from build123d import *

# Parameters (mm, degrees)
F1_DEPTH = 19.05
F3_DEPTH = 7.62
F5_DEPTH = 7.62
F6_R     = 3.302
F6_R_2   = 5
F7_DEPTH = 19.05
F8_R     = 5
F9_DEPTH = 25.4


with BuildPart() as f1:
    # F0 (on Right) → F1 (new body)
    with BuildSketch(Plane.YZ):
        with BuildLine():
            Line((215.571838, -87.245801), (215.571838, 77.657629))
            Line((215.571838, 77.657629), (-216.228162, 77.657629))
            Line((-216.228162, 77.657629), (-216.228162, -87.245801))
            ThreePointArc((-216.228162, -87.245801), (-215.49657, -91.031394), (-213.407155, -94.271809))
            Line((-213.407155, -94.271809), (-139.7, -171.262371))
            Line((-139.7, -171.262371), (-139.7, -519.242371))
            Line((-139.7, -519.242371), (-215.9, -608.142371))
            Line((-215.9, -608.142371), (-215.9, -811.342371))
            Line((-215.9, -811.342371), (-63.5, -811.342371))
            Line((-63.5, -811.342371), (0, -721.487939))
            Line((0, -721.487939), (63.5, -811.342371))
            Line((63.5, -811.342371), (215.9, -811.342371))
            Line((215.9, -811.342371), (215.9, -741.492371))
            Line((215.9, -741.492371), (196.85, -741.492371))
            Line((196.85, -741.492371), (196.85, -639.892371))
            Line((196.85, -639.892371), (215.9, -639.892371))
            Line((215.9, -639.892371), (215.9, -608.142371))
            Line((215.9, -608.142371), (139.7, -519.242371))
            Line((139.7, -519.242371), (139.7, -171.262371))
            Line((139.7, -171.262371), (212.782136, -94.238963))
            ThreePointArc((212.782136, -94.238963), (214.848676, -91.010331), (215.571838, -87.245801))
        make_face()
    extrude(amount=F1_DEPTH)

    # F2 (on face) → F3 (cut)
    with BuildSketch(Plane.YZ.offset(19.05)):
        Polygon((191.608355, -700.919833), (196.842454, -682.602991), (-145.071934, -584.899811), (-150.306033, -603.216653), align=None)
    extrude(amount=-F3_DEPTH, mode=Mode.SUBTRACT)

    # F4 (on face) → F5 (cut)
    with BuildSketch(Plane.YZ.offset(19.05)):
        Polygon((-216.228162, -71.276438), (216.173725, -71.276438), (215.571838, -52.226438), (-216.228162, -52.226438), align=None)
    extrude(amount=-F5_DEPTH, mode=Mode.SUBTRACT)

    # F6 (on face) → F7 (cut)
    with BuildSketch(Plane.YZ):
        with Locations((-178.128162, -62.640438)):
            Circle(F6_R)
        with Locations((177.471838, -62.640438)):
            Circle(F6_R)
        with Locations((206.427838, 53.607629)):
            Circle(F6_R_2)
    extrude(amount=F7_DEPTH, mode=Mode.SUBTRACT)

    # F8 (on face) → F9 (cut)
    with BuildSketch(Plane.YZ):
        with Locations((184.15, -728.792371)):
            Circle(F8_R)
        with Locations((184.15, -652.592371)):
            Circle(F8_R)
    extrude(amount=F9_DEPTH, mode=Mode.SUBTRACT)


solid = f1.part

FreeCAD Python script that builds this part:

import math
import FreeCAD as App
import Part
import Sketcher
Q = App.Units.Quantity

doc = App.newDocument("Part")
body = doc.addObject("PartDesign::Body", "Body")

# Sketch on YZ plane
sketch1 = body.newObject("Sketcher::SketchObject", "Sketch")
sketch1.AttachmentSupport = (doc.getObject("YZ_Plane"), [""])
sketch1.MapMode = "FlatFace"
sketch1.addGeometry(Part.LineSegment(App.Vector(215.571838, -87.245801, 0), App.Vector(215.571838, 77.657629, 0)), False)
sketch1.addGeometry(Part.LineSegment(App.Vector(215.571838, 77.657629, 0), App.Vector(-216.228162, 77.657629, 0)), False)
sketch1.addGeometry(Part.LineSegment(App.Vector(-216.228162, 77.657629, 0), App.Vector(-216.228162, -87.245801, 0)), False)
sketch1.addGeometry(Part.ArcOfCircle(Part.Circle(App.Vector(-206.068155, -87.245798, 0), App.Vector(0, 0, 1), 10.160007), math.radians(-179.999986), math.radians(-136.248183)), False)
sketch1.addGeometry(Part.LineSegment(App.Vector(-213.407155, -94.271809, 0), App.Vector(-139.7, -171.262371, 0)), False)
sketch1.addGeometry(Part.LineSegment(App.Vector(-139.7, -171.262371, 0), App.Vector(-139.7, -519.242371, 0)), False)
sketch1.addGeometry(Part.LineSegment(App.Vector(-139.7, -519.242371, 0), App.Vector(-215.9, -608.142371, 0)), False)
sketch1.addGeometry(Part.LineSegment(App.Vector(-215.9, -608.142371, 0), App.Vector(-215.9, -811.342371, 0)), False)
sketch1.addGeometry(Part.LineSegment(App.Vector(-215.9, -811.342371, 0), App.Vector(-63.5, -811.342371, 0)), False)
sketch1.addGeometry(Part.LineSegment(App.Vector(-63.5, -811.342371, 0), App.Vector(0, -721.487939, 0)), False)
sketch1.addGeometry(Part.LineSegment(App.Vector(0, -721.487939, 0), App.Vector(63.5, -811.342371, 0)), False)
sketch1.addGeometry(Part.LineSegment(App.Vector(63.5, -811.342371, 0), App.Vector(215.9, -811.342371, 0)), False)
sketch1.addGeometry(Part.LineSegment(App.Vector(215.9, -811.342371, 0), App.Vector(215.9, -741.492371, 0)), False)
sketch1.addGeometry(Part.LineSegment(App.Vector(215.9, -741.492371, 0), App.Vector(196.85, -741.492371, 0)), False)
sketch1.addGeometry(Part.LineSegment(App.Vector(196.85, -741.492371, 0), App.Vector(196.85, -639.892371, 0)), False)
sketch1.addGeometry(Part.LineSegment(App.Vector(196.85, -639.892371, 0), App.Vector(215.9, -639.892371, 0)), False)
sketch1.addGeometry(Part.LineSegment(App.Vector(215.9, -639.892371, 0), App.Vector(215.9, -608.142371, 0)), False)
sketch1.addGeometry(Part.LineSegment(App.Vector(215.9, -608.142371, 0), App.Vector(139.7, -519.242371, 0)), False)
sketch1.addGeometry(Part.LineSegment(App.Vector(139.7, -519.242371, 0), App.Vector(139.7, -171.262371, 0)), False)
sketch1.addGeometry(Part.LineSegment(App.Vector(139.7, -171.262371, 0), App.Vector(212.782136, -94.238963, 0)), False)
sketch1.addGeometry(Part.ArcOfCircle(Part.Circle(App.Vector(205.411834, -87.2458, 0), App.Vector(0, 0, 1), 10.160004), math.radians(-43.49594), math.radians(-0.000006)), False)
sketch1.addConstraint(Sketcher.Constraint("Coincident", 0, 2, 1, 1))
sketch1.addConstraint(Sketcher.Constraint("Coincident", 1, 2, 2, 1))
sketch1.addConstraint(Sketcher.Constraint("Tangent", 2, 2, 3, 1))
sketch1.addConstraint(Sketcher.Constraint("Tangent", 3, 2, 4, 1))
sketch1.addConstraint(Sketcher.Constraint("Coincident", 4, 2, 5, 1))
sketch1.addConstraint(Sketcher.Constraint("Coincident", 5, 2, 6, 1))
sketch1.addConstraint(Sketcher.Constraint("Coincident", 6, 2, 7, 1))
sketch1.addConstraint(Sketcher.Constraint("Coincident", 7, 2, 8, 1))
sketch1.addConstraint(Sketcher.Constraint("Coincident", 8, 2, 9, 1))
sketch1.addConstraint(Sketcher.Constraint("Coincident", 9, 2, 10, 1))
sketch1.addConstraint(Sketcher.Constraint("Coincident", 10, 2, 11, 1))
sketch1.addConstraint(Sketcher.Constraint("Coincident", 11, 2, 12, 1))
sketch1.addConstraint(Sketcher.Constraint("Coincident", 12, 2, 13, 1))
sketch1.addConstraint(Sketcher.Constraint("Coincident", 13, 2, 14, 1))
sketch1.addConstraint(Sketcher.Constraint("Coincident", 14, 2, 15, 1))
sketch1.addConstraint(Sketcher.Constraint("Coincident", 15, 2, 16, 1))
sketch1.addConstraint(Sketcher.Constraint("Coincident", 16, 2, 17, 1))
sketch1.addConstraint(Sketcher.Constraint("Coincident", 17, 2, 18, 1))
sketch1.addConstraint(Sketcher.Constraint("Coincident", 18, 2, 19, 1))
sketch1.addConstraint(Sketcher.Constraint("Tangent", 19, 2, 20, 1))
sketch1.addConstraint(Sketcher.Constraint("Tangent", 20, 2, 0, 1))
sketch1.addConstraint(Sketcher.Constraint("Vertical", 0))
sketch1.addConstraint(Sketcher.Constraint("Horizontal", 1))
sketch1.addConstraint(Sketcher.Constraint("Vertical", 2))
sketch1.addConstraint(Sketcher.Constraint("Vertical", 5))
sketch1.addConstraint(Sketcher.Constraint("Vertical", 7))
sketch1.addConstraint(Sketcher.Constraint("Horizontal", 8))
sketch1.addConstraint(Sketcher.Constraint("Horizontal", 11))
sketch1.addConstraint(Sketcher.Constraint("Vertical", 12))
sketch1.addConstraint(Sketcher.Constraint("Horizontal", 13))
sketch1.addConstraint(Sketcher.Constraint("Vertical", 14))
sketch1.addConstraint(Sketcher.Constraint("Horizontal", 15))
sketch1.addConstraint(Sketcher.Constraint("Vertical", 16))
sketch1.addConstraint(Sketcher.Constraint("Vertical", 18))
sketch1.addConstraint(Sketcher.Constraint("Symmetric", 8, 2, 10, 2, -2))
sketch1.addConstraint(Sketcher.Constraint("Symmetric", 6, 2, 16, 2, -2))
sketch1.addConstraint(Sketcher.Constraint("Symmetric", 5, 2, 17, 2, -2))
sketch1.addConstraint(Sketcher.Constraint("PointOnObject", 9, 2, -2))
sketch1.addConstraint(Sketcher.Constraint("Horizontal", 3, 3, 20, 3))
sketch1.addConstraint(Sketcher.Constraint("Horizontal", 4, 2, 18, 2))
sketch1.addConstraint(Sketcher.Constraint("Vertical", 12, 2, 15, 2))
sketch1.addConstraint(Sketcher.Constraint("Radius", 20, Q("0.4000002 in")))
sketch1.addConstraint(Sketcher.Constraint("DistanceX", 1, 2, 1, 1, Q("17 in")))
sketch1.addConstraint(Sketcher.Constraint("DistanceX", 8, 1, 8, 2, Q("6 in")))
sketch1.addConstraint(Sketcher.Constraint("DistanceY", 7, 2, 7, 1, Q("8 in")))
sketch1.addConstraint(Sketcher.Constraint("DistanceY", 14, 1, 14, 2, Q("4 in")))
sketch1.addConstraint(Sketcher.Constraint("DistanceY", 5, 2, 5, 1, Q("13.7 in")))
sketch1.addConstraint(Sketcher.Constraint("DistanceX", 6, 2, 5, 2, Q("3 in")))
sketch1.addConstraint(Sketcher.Constraint("DistanceX", 8, 2, 10, 2, Q("5 in")))
sketch1.addConstraint(Sketcher.Constraint("DistanceX", 13, 2, 13, 1, Q("0.75 in")))
sketch1.addConstraint(Sketcher.Constraint("DistanceY", 12, 1, 12, 2, Q("2.75 in")))
sketch1.addConstraint(Sketcher.Constraint("DistanceY", 4, 2, 1, 2, Q("9.8 in")))
sketch1.addConstraint(Sketcher.Constraint("DistanceY", 6, 2, 5, 2, Q("3.5 in")))
sketch1.addConstraint(Sketcher.Constraint("Radius", 3, Q("10.160007 mm")))
sketch1.addConstraint(Sketcher.Constraint("DistanceY", 0, 1, 0, 2, Q("164.90343 mm")))
sketch1.addConstraint(Sketcher.Constraint("DistanceY", 3, 3, -1, 1, Q("87.245798 mm")))
sketch1.addConstraint(Sketcher.Constraint("DistanceX", 3, 2, 3, 3, Q("7.339 mm")))
sketch1.addConstraint(Sketcher.Constraint("DistanceY", 9, 2, -1, 1, Q("721.487939 mm")))
pad1 = body.newObject("PartDesign::Pad", "Pad")
pad1.Profile = sketch1
pad1.Length = Q("0.75 in")

# Sketch on YZ plane
sketch2 = body.newObject("Sketcher::SketchObject", "Sketch001")
sketch2.AttachmentSupport = (doc.getObject("YZ_Plane"), [""])
sketch2.MapMode = "FlatFace"
sketch2.AttachmentOffset = App.Placement(App.Vector(0, 0, 0.75 * 25.4), App.Rotation())
sketch2.addGeometry(Part.LineSegment(App.Vector(191.608355, -700.919833, 0), App.Vector(196.842454, -682.602991, 0)), False)
sketch2.addGeometry(Part.LineSegment(App.Vector(196.842454, -682.602991, 0), App.Vector(-145.071934, -584.899811, 0)), False)
sketch2.addGeometry(Part.LineSegment(App.Vector(-145.071934, -584.899811, 0), App.Vector(-150.306033, -603.216653, 0)), False)
sketch2.addGeometry(Part.LineSegment(App.Vector(-150.306033, -603.216653, 0), App.Vector(191.608355, -700.919833, 0)), False)
sketch2.addConstraint(Sketcher.Constraint("Coincident", 0, 2, 1, 1))
sketch2.addConstraint(Sketcher.Constraint("Coincident", 1, 2, 2, 1))
sketch2.addConstraint(Sketcher.Constraint("Coincident", 2, 2, 3, 1))
sketch2.addConstraint(Sketcher.Constraint("Coincident", 3, 2, 0, 1))
sketch2.addConstraint(Sketcher.Constraint("Perpendicular", 0, 1))
sketch2.addConstraint(Sketcher.Constraint("Perpendicular", 1, 2))
sketch2.addConstraint(Sketcher.Constraint("Perpendicular", 2, 3))
sketch2.addConstraint(Sketcher.Constraint("Distance", 1, Q("14 in")))
sketch2.addConstraint(Sketcher.Constraint("Distance", 0, Q("0.75 in")))
sketch2.addConstraint(Sketcher.Constraint("DistanceX", 2, 2, 1, 2, Q("5.234099 mm")))
sketch2.addConstraint(Sketcher.Constraint("DistanceY", 0, 2, -1, 1, Q("682.602991 mm")))
sketch2.addConstraint(Sketcher.Constraint("DistanceX", -1, 1, 0, 2, Q("196.842454 mm")))
pocket1 = body.newObject("PartDesign::Pocket", "Pocket")
pocket1.Profile = sketch2
pocket1.Length = Q("0.3 in")

# Sketch on YZ plane
sketch3 = body.newObject("Sketcher::SketchObject", "Sketch002")
sketch3.AttachmentSupport = (doc.getObject("YZ_Plane"), [""])
sketch3.MapMode = "FlatFace"
sketch3.AttachmentOffset = App.Placement(App.Vector(0, 0, 0.75 * 25.4), App.Rotation())
sketch3.addGeometry(Part.LineSegment(App.Vector(-216.228162, -71.276438, 0), App.Vector(216.173725, -71.276438, 0)), False)
sketch3.addGeometry(Part.LineSegment(App.Vector(216.173725, -71.276438, 0), App.Vector(215.571838, -52.226438, 0)), False)
sketch3.addGeometry(Part.LineSegment(App.Vector(215.571838, -52.226438, 0), App.Vector(-216.228162, -52.226438, 0)), False)
sketch3.addGeometry(Part.LineSegment(App.Vector(-216.228162, -52.226438, 0), App.Vector(-216.228162, -71.276438, 0)), False)
sketch3.addConstraint(Sketcher.Constraint("Coincident", 0, 2, 1, 1))
sketch3.addConstraint(Sketcher.Constraint("Coincident", 1, 2, 2, 1))
sketch3.addConstraint(Sketcher.Constraint("Coincident", 2, 2, 3, 1))
sketch3.addConstraint(Sketcher.Constraint("Coincident", 3, 2, 0, 1))
sketch3.addConstraint(Sketcher.Constraint("Horizontal", 0))
sketch3.addConstraint(Sketcher.Constraint("Horizontal", 2))
sketch3.addConstraint(Sketcher.Constraint("Vertical", 3))
sketch3.addConstraint(Sketcher.Constraint("DistanceX", 2, 2, 2, 1, Q("17 in")))
sketch3.addConstraint(Sketcher.Constraint("DistanceY", 3, 2, 3, 1, Q("0.75 in")))
sketch3.addConstraint(Sketcher.Constraint("DistanceX", 0, 1, 0, 2, Q("432.401887 mm")))
sketch3.addConstraint(Sketcher.Constraint("DistanceY", 0, 2, -1, 1, Q("71.276438 mm")))
sketch3.addConstraint(Sketcher.Constraint("DistanceX", -1, 1, 1, 2, Q("215.571838 mm")))
pocket2 = body.newObject("PartDesign::Pocket", "Pocket001")
pocket2.Profile = sketch3
pocket2.Length = Q("0.3 in")

# Sketch on YZ plane
sketch4 = body.newObject("Sketcher::SketchObject", "Sketch003")
sketch4.AttachmentSupport = (doc.getObject("YZ_Plane"), [""])
sketch4.MapMode = "FlatFace"
sketch4.addGeometry(Part.Circle(App.Vector(-178.128162, -62.640438, 0), App.Vector(0, 0, 1), 3.302), False)
sketch4.addGeometry(Part.Circle(App.Vector(177.471838, -62.640438, 0), App.Vector(0, 0, 1), 3.302), False)
sketch4.addGeometry(Part.Circle(App.Vector(206.427838, 53.607629, 0), App.Vector(0, 0, 1), 5), False)
sketch4.addConstraint(Sketcher.Constraint("Equal", 0, 1))
sketch4.addConstraint(Sketcher.Constraint("Horizontal", 0, 3, 1, 3))
sketch4.addConstraint(Sketcher.Constraint("Diameter", 0, Q("0.26 in")))
sketch4.addConstraint(Sketcher.Constraint("DistanceX", 0, 3, 1, 3, Q("14 in")))
sketch4.addConstraint(Sketcher.Constraint("Diameter", 2, Q("10 mm")))
sketch4.addConstraint(Sketcher.Constraint("DistanceX", 1, 3, 2, 3, Q("1.14 in")))
sketch4.addConstraint(Sketcher.Constraint("DistanceX", 0, 3, -1, 1, Q("178.128162 mm")))
sketch4.addConstraint(Sketcher.Constraint("DistanceY", 0, 3, -1, 1, Q("62.640438 mm")))
sketch4.addConstraint(Sketcher.Constraint("DistanceY", -1, 1, 2, 3, Q("53.607629 mm")))
pocket3 = body.newObject("PartDesign::Pocket", "Pocket002")
pocket3.Profile = sketch4
pocket3.Length = Q("0.75 in")
pocket3.Reversed = True

# Sketch on YZ plane
sketch5 = body.newObject("Sketcher::SketchObject", "Sketch004")
sketch5.AttachmentSupport = (doc.getObject("YZ_Plane"), [""])
sketch5.MapMode = "FlatFace"
sketch5.addGeometry(Part.Circle(App.Vector(184.15, -728.792371, 0), App.Vector(0, 0, 1), 5), False)
sketch5.addGeometry(Part.Circle(App.Vector(184.15, -652.592371, 0), App.Vector(0, 0, 1), 5), False)
sketch5.addConstraint(Sketcher.Constraint("Equal", 0, 1))
sketch5.addConstraint(Sketcher.Constraint("Vertical", 0, 3, 1, 3))
sketch5.addConstraint(Sketcher.Constraint("DistanceY", 0, 3, 1, 3, Q("3 in")))
sketch5.addConstraint(Sketcher.Constraint("Diameter", 0, Q("10 mm")))
sketch5.addConstraint(Sketcher.Constraint("DistanceX", -1, 1, 0, 3, Q("7.25 in")))
sketch5.addConstraint(Sketcher.Constraint("DistanceY", 0, 3, -1, 1, Q("728.792371 mm")))
pocket4 = body.newObject("PartDesign::Pocket", "Pocket003")
pocket4.Profile = sketch5
pocket4.Length = Q("1 in")
pocket4.Reversed = True

doc.recompute()
